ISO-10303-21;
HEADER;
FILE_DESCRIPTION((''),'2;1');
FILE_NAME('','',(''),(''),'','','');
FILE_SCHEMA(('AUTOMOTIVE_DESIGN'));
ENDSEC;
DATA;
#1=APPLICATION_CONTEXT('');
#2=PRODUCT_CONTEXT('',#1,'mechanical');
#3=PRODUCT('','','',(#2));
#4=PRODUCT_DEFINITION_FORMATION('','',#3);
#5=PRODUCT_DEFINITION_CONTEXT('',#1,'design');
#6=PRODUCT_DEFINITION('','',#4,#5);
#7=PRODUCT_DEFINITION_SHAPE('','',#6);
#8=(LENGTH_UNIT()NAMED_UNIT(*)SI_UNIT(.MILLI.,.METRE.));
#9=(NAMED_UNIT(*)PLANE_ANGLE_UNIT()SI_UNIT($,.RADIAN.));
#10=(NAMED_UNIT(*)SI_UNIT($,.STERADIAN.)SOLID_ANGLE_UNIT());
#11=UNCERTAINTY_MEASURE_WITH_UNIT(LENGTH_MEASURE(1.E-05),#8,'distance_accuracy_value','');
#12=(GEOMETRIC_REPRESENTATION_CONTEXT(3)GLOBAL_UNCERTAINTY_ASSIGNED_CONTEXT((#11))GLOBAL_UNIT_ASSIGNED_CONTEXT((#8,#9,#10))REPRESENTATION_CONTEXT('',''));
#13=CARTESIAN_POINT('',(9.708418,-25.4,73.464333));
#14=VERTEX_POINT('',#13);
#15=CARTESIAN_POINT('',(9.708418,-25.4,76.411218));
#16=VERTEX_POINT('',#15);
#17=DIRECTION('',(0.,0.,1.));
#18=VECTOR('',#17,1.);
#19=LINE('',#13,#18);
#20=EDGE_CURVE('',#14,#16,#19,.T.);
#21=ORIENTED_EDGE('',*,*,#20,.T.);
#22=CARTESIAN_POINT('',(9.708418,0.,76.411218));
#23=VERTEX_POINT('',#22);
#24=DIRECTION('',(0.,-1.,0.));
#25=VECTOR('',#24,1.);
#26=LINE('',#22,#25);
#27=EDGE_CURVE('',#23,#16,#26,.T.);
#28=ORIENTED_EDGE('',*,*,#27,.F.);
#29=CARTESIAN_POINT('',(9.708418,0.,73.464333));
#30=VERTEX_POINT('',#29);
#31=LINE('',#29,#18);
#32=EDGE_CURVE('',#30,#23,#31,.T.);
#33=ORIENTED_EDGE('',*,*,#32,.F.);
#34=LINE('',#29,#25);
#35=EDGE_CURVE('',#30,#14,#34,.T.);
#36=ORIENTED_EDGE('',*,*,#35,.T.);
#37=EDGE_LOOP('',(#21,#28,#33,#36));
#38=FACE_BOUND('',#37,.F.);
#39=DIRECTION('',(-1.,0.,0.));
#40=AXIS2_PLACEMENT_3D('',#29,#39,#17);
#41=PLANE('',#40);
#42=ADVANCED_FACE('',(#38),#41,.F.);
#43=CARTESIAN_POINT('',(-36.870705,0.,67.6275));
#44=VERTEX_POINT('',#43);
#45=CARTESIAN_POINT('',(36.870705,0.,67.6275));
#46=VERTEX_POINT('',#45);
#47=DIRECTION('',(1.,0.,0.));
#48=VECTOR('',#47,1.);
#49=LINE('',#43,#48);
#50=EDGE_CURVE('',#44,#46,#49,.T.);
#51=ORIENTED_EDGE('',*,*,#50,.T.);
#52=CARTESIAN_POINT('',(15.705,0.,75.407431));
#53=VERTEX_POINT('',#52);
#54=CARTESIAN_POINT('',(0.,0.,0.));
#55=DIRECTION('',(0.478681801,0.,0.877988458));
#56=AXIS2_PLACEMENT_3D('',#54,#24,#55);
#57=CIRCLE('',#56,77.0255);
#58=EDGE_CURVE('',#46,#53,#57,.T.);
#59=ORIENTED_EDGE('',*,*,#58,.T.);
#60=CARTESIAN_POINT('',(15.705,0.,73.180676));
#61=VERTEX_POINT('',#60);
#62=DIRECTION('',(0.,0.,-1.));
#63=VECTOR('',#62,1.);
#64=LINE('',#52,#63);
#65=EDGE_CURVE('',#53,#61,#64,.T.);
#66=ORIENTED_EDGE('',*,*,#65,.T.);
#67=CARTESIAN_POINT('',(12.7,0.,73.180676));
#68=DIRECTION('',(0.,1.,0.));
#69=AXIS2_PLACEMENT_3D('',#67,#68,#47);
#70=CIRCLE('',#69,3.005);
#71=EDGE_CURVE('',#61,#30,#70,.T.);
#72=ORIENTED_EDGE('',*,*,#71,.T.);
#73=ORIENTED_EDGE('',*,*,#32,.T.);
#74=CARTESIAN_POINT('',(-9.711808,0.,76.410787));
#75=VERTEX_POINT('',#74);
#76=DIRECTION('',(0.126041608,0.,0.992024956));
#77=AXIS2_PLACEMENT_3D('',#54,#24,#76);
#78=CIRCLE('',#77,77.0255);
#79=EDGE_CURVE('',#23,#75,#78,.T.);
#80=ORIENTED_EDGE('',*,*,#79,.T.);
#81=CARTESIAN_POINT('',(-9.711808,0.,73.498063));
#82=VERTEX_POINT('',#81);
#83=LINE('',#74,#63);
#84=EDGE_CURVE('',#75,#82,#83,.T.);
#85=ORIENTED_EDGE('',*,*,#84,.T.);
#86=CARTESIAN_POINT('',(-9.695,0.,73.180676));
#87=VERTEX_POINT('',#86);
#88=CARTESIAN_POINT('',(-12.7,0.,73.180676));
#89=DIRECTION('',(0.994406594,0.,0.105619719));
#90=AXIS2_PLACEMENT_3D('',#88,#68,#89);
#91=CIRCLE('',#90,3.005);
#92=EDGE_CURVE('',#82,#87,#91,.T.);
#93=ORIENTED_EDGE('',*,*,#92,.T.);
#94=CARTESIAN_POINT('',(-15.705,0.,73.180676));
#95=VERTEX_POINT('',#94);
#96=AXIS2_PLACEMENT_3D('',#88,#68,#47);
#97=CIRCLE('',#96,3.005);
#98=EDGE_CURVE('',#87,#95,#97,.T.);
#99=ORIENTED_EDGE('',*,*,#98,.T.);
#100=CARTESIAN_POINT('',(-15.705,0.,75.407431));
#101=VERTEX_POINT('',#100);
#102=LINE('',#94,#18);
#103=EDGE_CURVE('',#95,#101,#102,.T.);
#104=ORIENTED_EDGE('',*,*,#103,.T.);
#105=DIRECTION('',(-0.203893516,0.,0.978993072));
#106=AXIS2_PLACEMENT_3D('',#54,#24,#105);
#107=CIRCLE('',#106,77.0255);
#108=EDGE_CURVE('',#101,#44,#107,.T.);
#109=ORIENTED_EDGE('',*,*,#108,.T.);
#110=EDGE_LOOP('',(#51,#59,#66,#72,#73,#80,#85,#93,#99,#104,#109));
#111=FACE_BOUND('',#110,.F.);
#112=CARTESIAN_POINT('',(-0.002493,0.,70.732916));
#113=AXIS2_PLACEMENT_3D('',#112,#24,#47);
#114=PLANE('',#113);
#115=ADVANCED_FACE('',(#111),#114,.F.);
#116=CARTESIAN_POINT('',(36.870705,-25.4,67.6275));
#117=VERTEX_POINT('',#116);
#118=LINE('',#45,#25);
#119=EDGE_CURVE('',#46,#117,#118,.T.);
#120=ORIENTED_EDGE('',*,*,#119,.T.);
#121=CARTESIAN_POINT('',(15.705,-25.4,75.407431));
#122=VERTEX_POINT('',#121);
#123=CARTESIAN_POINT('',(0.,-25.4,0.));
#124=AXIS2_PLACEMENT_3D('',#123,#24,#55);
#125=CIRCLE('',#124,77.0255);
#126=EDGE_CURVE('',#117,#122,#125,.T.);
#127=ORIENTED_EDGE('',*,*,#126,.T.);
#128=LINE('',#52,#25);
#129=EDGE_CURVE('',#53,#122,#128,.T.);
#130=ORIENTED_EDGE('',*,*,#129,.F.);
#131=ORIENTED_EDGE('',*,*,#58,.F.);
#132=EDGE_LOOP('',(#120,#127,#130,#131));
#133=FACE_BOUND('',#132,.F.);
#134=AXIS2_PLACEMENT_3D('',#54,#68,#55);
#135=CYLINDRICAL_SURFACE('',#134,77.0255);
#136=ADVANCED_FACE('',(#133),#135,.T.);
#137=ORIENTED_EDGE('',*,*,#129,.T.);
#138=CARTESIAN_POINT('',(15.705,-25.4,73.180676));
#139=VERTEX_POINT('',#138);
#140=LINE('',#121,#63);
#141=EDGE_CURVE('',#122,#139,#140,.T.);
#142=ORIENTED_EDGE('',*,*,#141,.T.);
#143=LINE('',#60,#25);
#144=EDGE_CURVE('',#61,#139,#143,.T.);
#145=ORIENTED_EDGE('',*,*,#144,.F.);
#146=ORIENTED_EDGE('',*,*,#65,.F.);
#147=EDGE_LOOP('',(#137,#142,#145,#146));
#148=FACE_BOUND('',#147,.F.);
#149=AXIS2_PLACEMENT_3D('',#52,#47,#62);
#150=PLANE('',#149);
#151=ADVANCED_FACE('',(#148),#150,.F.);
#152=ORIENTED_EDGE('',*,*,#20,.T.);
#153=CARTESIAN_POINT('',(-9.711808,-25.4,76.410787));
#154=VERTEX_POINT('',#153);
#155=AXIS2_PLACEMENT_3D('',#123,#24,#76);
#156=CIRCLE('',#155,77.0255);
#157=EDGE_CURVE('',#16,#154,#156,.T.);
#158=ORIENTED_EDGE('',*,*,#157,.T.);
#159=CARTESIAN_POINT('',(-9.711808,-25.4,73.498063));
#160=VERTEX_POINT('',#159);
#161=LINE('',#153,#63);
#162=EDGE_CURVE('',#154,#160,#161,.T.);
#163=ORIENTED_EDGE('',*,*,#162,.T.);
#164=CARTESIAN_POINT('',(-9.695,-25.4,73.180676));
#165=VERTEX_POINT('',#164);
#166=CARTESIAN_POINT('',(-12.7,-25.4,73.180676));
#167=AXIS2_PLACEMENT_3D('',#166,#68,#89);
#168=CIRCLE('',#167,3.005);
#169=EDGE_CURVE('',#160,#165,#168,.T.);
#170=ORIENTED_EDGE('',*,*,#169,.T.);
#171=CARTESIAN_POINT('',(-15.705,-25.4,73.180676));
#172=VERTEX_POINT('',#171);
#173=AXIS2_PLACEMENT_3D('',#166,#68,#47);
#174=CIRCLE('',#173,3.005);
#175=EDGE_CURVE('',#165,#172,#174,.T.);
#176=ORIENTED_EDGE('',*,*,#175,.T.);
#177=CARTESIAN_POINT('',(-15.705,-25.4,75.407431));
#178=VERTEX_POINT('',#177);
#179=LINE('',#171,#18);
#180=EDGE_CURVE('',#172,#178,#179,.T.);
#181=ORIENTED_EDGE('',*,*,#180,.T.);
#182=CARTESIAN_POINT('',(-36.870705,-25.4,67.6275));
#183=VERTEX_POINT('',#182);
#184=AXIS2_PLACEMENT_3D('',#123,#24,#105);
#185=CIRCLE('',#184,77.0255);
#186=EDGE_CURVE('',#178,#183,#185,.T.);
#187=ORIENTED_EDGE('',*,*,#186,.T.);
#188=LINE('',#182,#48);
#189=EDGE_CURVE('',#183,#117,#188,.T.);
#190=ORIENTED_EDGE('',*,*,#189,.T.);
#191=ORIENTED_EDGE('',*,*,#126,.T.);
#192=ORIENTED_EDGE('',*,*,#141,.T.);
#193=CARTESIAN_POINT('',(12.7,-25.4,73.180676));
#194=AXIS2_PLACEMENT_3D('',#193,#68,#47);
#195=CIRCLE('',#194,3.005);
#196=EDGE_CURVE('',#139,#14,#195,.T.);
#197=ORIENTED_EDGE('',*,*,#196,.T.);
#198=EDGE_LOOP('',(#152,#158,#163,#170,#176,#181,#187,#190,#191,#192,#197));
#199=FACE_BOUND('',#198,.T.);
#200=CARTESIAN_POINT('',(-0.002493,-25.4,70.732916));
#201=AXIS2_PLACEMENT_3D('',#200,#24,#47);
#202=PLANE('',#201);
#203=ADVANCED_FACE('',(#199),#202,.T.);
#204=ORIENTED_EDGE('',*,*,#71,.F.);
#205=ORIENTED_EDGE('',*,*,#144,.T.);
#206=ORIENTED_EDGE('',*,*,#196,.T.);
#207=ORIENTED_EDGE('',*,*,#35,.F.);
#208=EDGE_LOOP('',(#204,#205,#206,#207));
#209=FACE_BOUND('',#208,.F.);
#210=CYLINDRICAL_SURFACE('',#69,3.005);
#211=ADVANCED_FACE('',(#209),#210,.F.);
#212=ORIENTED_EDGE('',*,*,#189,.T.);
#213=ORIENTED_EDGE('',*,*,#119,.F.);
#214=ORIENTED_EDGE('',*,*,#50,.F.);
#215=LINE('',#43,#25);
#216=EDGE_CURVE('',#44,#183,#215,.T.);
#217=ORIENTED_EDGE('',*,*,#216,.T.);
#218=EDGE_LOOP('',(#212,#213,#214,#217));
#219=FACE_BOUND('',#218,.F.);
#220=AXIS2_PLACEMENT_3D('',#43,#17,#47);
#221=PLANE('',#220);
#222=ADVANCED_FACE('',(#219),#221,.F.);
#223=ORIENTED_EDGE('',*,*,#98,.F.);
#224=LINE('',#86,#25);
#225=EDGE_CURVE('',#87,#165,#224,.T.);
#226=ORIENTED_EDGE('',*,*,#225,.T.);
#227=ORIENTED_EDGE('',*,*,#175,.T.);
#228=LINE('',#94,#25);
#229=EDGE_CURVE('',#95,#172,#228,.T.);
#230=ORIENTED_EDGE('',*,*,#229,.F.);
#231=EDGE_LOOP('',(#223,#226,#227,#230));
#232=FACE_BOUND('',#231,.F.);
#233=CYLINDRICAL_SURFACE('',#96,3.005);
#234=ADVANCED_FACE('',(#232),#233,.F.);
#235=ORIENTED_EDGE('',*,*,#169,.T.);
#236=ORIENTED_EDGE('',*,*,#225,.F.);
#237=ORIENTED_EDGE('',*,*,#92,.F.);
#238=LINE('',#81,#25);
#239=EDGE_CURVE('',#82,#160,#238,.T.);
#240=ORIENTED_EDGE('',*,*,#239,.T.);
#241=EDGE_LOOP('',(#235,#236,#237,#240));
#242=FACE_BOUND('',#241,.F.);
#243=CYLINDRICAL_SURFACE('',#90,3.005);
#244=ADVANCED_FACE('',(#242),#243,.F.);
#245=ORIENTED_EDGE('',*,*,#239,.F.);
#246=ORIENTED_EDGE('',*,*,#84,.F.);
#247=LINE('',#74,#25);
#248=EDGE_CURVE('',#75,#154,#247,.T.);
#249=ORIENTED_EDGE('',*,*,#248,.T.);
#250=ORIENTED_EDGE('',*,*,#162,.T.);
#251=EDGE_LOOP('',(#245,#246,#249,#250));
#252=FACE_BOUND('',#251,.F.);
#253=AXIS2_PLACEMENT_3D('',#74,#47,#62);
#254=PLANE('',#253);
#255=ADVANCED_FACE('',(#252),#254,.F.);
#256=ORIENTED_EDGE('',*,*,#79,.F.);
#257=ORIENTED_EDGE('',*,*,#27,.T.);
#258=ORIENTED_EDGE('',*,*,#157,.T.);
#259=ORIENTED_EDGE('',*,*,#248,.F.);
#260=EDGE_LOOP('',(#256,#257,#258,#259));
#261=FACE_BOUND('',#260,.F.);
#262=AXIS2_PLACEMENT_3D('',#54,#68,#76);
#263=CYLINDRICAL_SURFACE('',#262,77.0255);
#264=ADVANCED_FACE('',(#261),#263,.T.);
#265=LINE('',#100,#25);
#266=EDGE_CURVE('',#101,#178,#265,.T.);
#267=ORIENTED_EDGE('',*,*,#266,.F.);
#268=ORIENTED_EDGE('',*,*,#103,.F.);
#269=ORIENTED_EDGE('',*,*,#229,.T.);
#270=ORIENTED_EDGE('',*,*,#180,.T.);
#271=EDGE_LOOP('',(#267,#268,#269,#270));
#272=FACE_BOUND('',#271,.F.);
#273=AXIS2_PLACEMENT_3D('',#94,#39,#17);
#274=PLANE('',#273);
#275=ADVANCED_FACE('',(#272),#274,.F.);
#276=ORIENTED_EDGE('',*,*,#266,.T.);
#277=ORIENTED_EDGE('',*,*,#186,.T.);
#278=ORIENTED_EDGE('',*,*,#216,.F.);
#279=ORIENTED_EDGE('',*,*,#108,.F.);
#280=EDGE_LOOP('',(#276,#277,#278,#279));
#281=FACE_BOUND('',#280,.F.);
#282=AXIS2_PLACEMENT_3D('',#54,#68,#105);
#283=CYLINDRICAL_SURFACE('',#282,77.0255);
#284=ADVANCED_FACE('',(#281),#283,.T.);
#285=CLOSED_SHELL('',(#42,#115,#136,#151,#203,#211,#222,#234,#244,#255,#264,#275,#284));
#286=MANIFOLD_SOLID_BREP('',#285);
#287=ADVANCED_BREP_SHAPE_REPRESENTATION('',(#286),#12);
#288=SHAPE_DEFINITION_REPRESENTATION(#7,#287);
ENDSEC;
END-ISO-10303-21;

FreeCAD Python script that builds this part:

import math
import FreeCAD as App
import Part
import Sketcher

V = App.Vector
Q = App.Units.Quantity

doc = App.newDocument("Part")
body = doc.addObject("PartDesign::Body", "Body")

sketch1 = doc.addObject("Sketcher::SketchObject", "Sketch")
body.addObject(sketch1)
sketch1.AttachmentSupport = (doc.XZ_Plane, [""])
sketch1.MapMode = "FlatFace"
sketch1.addGeometry([
    Part.LineSegment(V(-36.87, 67.63, 0), V(36.87, 67.63, 0)),
    Part.ArcOfCircle(Part.Circle(V(0, 0, 0), V(0, 0, 1), 77.03), math.radians(61.4), math.radians(78.24)),
    Part.LineSegment(V(15.71, 75.41, 0), V(15.71, 73.18, 0)),
    Part.ArcOfCircle(Part.Circle(V(12.7, 73.18, 0), V(0, 0, 1), 3), math.radians(175), math.radians(360)),
    Part.LineSegment(V(9.71, 73.46, 0), V(9.71, 76.41, 0)),
    Part.ArcOfCircle(Part.Circle(V(0, 0, 0), V(0, 0, 1), 77.03), math.radians(82.76), math.radians(97.24)),
    Part.LineSegment(V(-9.71, 76.41, 0), V(-9.71, 73.5, 0)),
    Part.ArcOfCircle(Part.Circle(V(-12.7, 73.18, 0), V(0, 0, 1), 3), math.radians(0), math.radians(6.06)),
    Part.ArcOfCircle(Part.Circle(V(-12.7, 73.18, 0), V(0, 0, 1), 3), math.radians(180), math.radians(360)),
    Part.LineSegment(V(-15.71, 73.18, 0), V(-15.71, 75.41, 0)),
    Part.ArcOfCircle(Part.Circle(V(0, 0, 0), V(0, 0, 1), 77.03), math.radians(101.76), math.radians(118.6)),
], False)
sketch1.addConstraint([
    Sketcher.Constraint("Coincident", 0, 2, 1, 1),
    Sketcher.Constraint("Coincident", 1, 2, 2, 1),
    Sketcher.Constraint("Tangent", 2, 2, 3, 2),
    Sketcher.Constraint("Coincident", 3, 1, 4, 1),
    Sketcher.Constraint("Coincident", 4, 2, 5, 1),
    Sketcher.Constraint("Coincident", 5, 2, 6, 1),
    Sketcher.Constraint("Coincident", 6, 2, 7, 2),
    Sketcher.Constraint("Tangent", 7, 1, 8, 2),
    Sketcher.Constraint("Tangent", 8, 1, 9, 1),
    Sketcher.Constraint("Coincident", 9, 2, 10, 1),
    Sketcher.Constraint("Coincident", 10, 2, 0, 1),
    Sketcher.Constraint("Horizontal", 0),
    Sketcher.Constraint("Vertical", 2),
    Sketcher.Constraint("Vertical", 4),
    Sketcher.Constraint("Vertical", 6),
    Sketcher.Constraint("Vertical", 9),
    Sketcher.Constraint("Coincident", 1, 3, -1, 1),
    Sketcher.Constraint("Coincident", 5, 3, -1, 1),
    Sketcher.Constraint("Coincident", 10, 3, -1, 1),
    Sketcher.Constraint("Equal", 1, 5),
    Sketcher.Constraint("Equal", 3, 7),
    Sketcher.Constraint("Equal", 7, 8),
    Sketcher.Constraint("Equal", 5, 10),
    Sketcher.Constraint("Symmetric", 3, 3, 7, 3, -2),
    Sketcher.Constraint("Horizontal", 2, 2, 7, 1),
    Sketcher.Constraint("DistanceX", 7, 3, 3, 3, Q("1 in")),
    Sketcher.Constraint("Radius", 1, Q("3.0325 in")),
    Sketcher.Constraint("Radius", 3, Q("3.005 mm")),
    Sketcher.Constraint("DistanceY", -1, 1, 0, 2, Q("2.6625 in")),
    Sketcher.Constraint("DistanceY", 3, 1, 1, 2, Q("0.0764999 in")),
    Sketcher.Constraint("DistanceY", 2, 2, 2, 1, Q("2.226755 mm")),
    Sketcher.Constraint("DistanceY", 6, 2, 6, 1, Q("2.912724 mm")),
])
pad1 = doc.addObject("PartDesign::Pad", "Pad")
body.addObject(pad1)
pad1.Profile = sketch1
pad1.Length = Q("1 in")

doc.recompute()
